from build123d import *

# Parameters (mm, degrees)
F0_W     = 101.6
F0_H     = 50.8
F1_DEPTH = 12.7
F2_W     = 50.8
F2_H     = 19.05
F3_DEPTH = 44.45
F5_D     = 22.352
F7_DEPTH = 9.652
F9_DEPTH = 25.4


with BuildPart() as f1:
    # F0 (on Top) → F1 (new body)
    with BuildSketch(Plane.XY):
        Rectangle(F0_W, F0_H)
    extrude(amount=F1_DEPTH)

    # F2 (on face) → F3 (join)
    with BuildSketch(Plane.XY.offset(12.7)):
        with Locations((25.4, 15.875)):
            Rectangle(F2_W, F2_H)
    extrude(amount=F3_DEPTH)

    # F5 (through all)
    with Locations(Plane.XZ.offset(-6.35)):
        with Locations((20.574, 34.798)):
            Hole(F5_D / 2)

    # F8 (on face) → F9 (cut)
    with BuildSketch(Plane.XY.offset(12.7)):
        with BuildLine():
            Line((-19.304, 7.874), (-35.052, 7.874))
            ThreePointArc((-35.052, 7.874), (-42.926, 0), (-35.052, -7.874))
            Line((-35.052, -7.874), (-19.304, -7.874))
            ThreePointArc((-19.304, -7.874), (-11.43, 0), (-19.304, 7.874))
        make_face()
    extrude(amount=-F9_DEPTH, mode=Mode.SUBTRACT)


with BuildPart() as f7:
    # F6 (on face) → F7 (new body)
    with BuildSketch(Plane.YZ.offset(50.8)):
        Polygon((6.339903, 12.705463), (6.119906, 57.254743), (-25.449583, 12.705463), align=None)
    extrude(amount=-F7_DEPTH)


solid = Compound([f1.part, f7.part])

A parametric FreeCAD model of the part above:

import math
import FreeCAD as App
import Part
import Sketcher
from FreeCAD import Vector
Q = App.Units.Quantity

doc = App.newDocument("Part")
body = doc.addObject("PartDesign::Body", "Body")

sketch1 = doc.addObject("Sketcher::SketchObject", "Sketch")
body.addObject(sketch1)
sketch1.AttachmentSupport = (doc.XY_Plane, [""])
sketch1.MapMode = "FlatFace"
sketch1.addGeometry([
    Part.LineSegment(Vector(-50.8, 25.4, 0), Vector(-50.8, -25.4, 0)),
    Part.LineSegment(Vector(-50.8, -25.4, 0), Vector(50.8, -25.4, 0)),
    Part.LineSegment(Vector(50.8, -25.4, 0), Vector(50.8, 25.4, 0)),
    Part.LineSegment(Vector(50.8, 25.4, 0), Vector(-50.8, 25.4, 0)),
], False)
sketch1.addConstraint([
    Sketcher.Constraint("Coincident", 0, 2, 1, 1),
    Sketcher.Constraint("Coincident", 1, 2, 2, 1),
    Sketcher.Constraint("Coincident", 2, 2, 3, 1),
    Sketcher.Constraint("Coincident", 3, 2, 0, 1),
    Sketcher.Constraint("Vertical", 0),
    Sketcher.Constraint("Horizontal", 1),
    Sketcher.Constraint("Vertical", 2),
    Sketcher.Constraint("Horizontal", 3),
    Sketcher.Constraint("Symmetric", 0, 2, 2, 2, -1, 1),
    Sketcher.Constraint("DistanceX", 1, 1, 1, 2, Q("4 in")),
    Sketcher.Constraint("DistanceY", 0, 2, 0, 1, Q("2 in")),
])
pad1 = doc.addObject("PartDesign::Pad", "Pad")
body.addObject(pad1)
pad1.Profile = sketch1
pad1.Length = Q("0.5 in")

sketch2 = doc.addObject("Sketcher::SketchObject", "Sketch001")
body.addObject(sketch2)
sketch2.AttachmentSupport = (doc.XY_Plane, [""])
sketch2.MapMode = "FlatFace"
sketch2.AttachmentOffset = App.Placement(Vector(0, 0, 0.5 * 25.4), App.Rotation())
sketch2.addGeometry([
    Part.LineSegment(Vector(0, 25.4, 0), Vector(0, 6.35, 0)),
    Part.LineSegment(Vector(0, 6.35, 0), Vector(50.8, 6.35, 0)),
    Part.LineSegment(Vector(50.8, 6.35, 0), Vector(50.8, 25.4, 0)),
    Part.LineSegment(Vector(50.8, 25.4, 0), Vector(0, 25.4, 0)),
], False)
sketch2.addConstraint([
    Sketcher.Constraint("Coincident", 0, 2, 1, 1),
    Sketcher.Constraint("Coincident", 1, 2, 2, 1),
    Sketcher.Constraint("Coincident", 2, 2, 3, 1),
    Sketcher.Constraint("Coincident", 3, 2, 0, 1),
    Sketcher.Constraint("Vertical", 0),
    Sketcher.Constraint("Horizontal", 1),
    Sketcher.Constraint("Vertical", 2),
    Sketcher.Constraint("Horizontal", 3),
    Sketcher.Constraint("PointOnObject", 0, 2, -2),
    Sketcher.Constraint("DistanceX", 1, 1, 1, 2, Q("2 in")),
    Sketcher.Constraint("DistanceY", -1, 1, 2, 2, Q("1 in")),
    Sketcher.Constraint("DistanceY", 0, 2, 0, 1, Q("0.75 in")),
])
pad2 = doc.addObject("PartDesign::Pad", "Pad001")
body.addObject(pad2)
pad2.Profile = sketch2
pad2.Length = Q("1.75 in")

sketch3 = doc.addObject("Sketcher::SketchObject", "Sketch002")
body.addObject(sketch3)
sketch3.AttachmentSupport = (doc.XZ_Plane, [""])
sketch3.MapMode = "FlatFace"
sketch3.AttachmentOffset = App.Placement(Vector(0, 0, -0.25 * 25.4), App.Rotation())
sketch3.addGeometry(Part.Circle(Vector(20.574, 34.798, 0), Vector(0, 0, 1), 11.176), False)
sketch3.addConstraint([
    Sketcher.Constraint("Diameter", 0, Q("0.88 in")),
    Sketcher.Constraint("DistanceX", -1, 1, 0, 3, Q("0.81 in")),
    Sketcher.Constraint("DistanceY", -1, 1, 0, 3, Q("1.37 in")),
])
doc.recompute()
hole = doc.addObject("PartDesign::Hole", "Hole")
body.addObject(hole)
hole.Profile = sketch3
hole.ThreadType = "None"
hole.Diameter = Q("0.88 in")
hole.DepthType = "ThroughAll"

sketch4 = doc.addObject("Sketcher::SketchObject", "Sketch003")
body.addObject(sketch4)
sketch4.AttachmentSupport = (doc.XY_Plane, [""])
sketch4.MapMode = "FlatFace"
sketch4.AttachmentOffset = App.Placement(Vector(0, 0, 0.5 * 25.4), App.Rotation())
sketch4.addGeometry([
    Part.LineSegment(Vector(-19.304, 7.874, 0), Vector(-35.052, 7.874, 0)),
    Part.ArcOfCircle(Part.Circle(Vector(-35.052, 0, 0), Vector(0, 0, 1), 7.874), math.radians(90), math.radians(270)),
    Part.LineSegment(Vector(-35.052, -7.874, 0), Vector(-19.304, -7.874, 0)),
    Part.ArcOfCircle(Part.Circle(Vector(-19.304, 0, 0), Vector(0, 0, 1), 7.874), math.radians(-90), math.radians(90)),
], False)
sketch4.addConstraint([
    Sketcher.Constraint("Tangent", 0, 2, 1, 1),
    Sketcher.Constraint("Tangent", 1, 2, 2, 1),
    Sketcher.Constraint("Tangent", 2, 2, 3, 1),
    Sketcher.Constraint("Tangent", 3, 2, 0, 1),
    Sketcher.Constraint("Horizontal", 0),
    Sketcher.Constraint("Horizontal", 2),
    Sketcher.Constraint("PointOnObject", 1, 3, -1),
    Sketcher.Constraint("Radius", 1, Q("0.31 in")),
    Sketcher.Constraint("DistanceX", 0, 2, 0, 1, Q("0.62 in")),
    Sketcher.Constraint("DistanceX", 1, 3, -1, 1, Q("1.38 in")),
])
pocket1 = doc.addObject("PartDesign::Pocket", "Pocket")
body.addObject(pocket1)
pocket1.Profile = sketch4
pocket1.Length = Q("1 in")
body2 = doc.addObject("PartDesign::Body", "Body001")

sketch5 = doc.addObject("Sketcher::SketchObject", "Sketch004")
body2.addObject(sketch5)
sketch5.AttachmentSupport = (doc.getObject("YZ_Plane001"), [""])
sketch5.MapMode = "FlatFace"
sketch5.AttachmentOffset = App.Placement(Vector(0, 0, 2 * 25.4), App.Rotation())
sketch5.addGeometry([
    Part.LineSegment(Vector(6.339903, 12.705463, 0), Vector(6.119906, 57.254743, 0)),
    Part.LineSegment(Vector(6.119906, 57.254743, 0), Vector(-25.449583, 12.705463, 0)),
    Part.LineSegment(Vector(-25.449583, 12.705463, 0), Vector(6.339903, 12.705463, 0)),
], False)
sketch5.addConstraint([
    Sketcher.Constraint("Coincident", 0, 2, 1, 1),
    Sketcher.Constraint("Coincident", 1, 2, 2, 1),
    Sketcher.Constraint("Coincident", 2, 2, 0, 1),
    Sketcher.Constraint("Horizontal", 2),
    Sketcher.Constraint("DistanceX", 2, 1, 2, 2, 31.789486),
    Sketcher.Constraint("DistanceX", 1, 2, 0, 2, 31.569489),
    Sketcher.Constraint("DistanceY", 1, 2, 0, 2, 44.54928),
    Sketcher.Constraint("DistanceX", -1, 1, 0, 2, 6.119906),
    Sketcher.Constraint("DistanceY", -1, 1, 0, 2, 57.254743),
])
pad3 = doc.addObject("PartDesign::Pad", "Pad002")
body2.addObject(pad3)
pad3.Profile = sketch5
pad3.Length = Q("0.38 in")
pad3.Reversed = True

doc.recompute()
